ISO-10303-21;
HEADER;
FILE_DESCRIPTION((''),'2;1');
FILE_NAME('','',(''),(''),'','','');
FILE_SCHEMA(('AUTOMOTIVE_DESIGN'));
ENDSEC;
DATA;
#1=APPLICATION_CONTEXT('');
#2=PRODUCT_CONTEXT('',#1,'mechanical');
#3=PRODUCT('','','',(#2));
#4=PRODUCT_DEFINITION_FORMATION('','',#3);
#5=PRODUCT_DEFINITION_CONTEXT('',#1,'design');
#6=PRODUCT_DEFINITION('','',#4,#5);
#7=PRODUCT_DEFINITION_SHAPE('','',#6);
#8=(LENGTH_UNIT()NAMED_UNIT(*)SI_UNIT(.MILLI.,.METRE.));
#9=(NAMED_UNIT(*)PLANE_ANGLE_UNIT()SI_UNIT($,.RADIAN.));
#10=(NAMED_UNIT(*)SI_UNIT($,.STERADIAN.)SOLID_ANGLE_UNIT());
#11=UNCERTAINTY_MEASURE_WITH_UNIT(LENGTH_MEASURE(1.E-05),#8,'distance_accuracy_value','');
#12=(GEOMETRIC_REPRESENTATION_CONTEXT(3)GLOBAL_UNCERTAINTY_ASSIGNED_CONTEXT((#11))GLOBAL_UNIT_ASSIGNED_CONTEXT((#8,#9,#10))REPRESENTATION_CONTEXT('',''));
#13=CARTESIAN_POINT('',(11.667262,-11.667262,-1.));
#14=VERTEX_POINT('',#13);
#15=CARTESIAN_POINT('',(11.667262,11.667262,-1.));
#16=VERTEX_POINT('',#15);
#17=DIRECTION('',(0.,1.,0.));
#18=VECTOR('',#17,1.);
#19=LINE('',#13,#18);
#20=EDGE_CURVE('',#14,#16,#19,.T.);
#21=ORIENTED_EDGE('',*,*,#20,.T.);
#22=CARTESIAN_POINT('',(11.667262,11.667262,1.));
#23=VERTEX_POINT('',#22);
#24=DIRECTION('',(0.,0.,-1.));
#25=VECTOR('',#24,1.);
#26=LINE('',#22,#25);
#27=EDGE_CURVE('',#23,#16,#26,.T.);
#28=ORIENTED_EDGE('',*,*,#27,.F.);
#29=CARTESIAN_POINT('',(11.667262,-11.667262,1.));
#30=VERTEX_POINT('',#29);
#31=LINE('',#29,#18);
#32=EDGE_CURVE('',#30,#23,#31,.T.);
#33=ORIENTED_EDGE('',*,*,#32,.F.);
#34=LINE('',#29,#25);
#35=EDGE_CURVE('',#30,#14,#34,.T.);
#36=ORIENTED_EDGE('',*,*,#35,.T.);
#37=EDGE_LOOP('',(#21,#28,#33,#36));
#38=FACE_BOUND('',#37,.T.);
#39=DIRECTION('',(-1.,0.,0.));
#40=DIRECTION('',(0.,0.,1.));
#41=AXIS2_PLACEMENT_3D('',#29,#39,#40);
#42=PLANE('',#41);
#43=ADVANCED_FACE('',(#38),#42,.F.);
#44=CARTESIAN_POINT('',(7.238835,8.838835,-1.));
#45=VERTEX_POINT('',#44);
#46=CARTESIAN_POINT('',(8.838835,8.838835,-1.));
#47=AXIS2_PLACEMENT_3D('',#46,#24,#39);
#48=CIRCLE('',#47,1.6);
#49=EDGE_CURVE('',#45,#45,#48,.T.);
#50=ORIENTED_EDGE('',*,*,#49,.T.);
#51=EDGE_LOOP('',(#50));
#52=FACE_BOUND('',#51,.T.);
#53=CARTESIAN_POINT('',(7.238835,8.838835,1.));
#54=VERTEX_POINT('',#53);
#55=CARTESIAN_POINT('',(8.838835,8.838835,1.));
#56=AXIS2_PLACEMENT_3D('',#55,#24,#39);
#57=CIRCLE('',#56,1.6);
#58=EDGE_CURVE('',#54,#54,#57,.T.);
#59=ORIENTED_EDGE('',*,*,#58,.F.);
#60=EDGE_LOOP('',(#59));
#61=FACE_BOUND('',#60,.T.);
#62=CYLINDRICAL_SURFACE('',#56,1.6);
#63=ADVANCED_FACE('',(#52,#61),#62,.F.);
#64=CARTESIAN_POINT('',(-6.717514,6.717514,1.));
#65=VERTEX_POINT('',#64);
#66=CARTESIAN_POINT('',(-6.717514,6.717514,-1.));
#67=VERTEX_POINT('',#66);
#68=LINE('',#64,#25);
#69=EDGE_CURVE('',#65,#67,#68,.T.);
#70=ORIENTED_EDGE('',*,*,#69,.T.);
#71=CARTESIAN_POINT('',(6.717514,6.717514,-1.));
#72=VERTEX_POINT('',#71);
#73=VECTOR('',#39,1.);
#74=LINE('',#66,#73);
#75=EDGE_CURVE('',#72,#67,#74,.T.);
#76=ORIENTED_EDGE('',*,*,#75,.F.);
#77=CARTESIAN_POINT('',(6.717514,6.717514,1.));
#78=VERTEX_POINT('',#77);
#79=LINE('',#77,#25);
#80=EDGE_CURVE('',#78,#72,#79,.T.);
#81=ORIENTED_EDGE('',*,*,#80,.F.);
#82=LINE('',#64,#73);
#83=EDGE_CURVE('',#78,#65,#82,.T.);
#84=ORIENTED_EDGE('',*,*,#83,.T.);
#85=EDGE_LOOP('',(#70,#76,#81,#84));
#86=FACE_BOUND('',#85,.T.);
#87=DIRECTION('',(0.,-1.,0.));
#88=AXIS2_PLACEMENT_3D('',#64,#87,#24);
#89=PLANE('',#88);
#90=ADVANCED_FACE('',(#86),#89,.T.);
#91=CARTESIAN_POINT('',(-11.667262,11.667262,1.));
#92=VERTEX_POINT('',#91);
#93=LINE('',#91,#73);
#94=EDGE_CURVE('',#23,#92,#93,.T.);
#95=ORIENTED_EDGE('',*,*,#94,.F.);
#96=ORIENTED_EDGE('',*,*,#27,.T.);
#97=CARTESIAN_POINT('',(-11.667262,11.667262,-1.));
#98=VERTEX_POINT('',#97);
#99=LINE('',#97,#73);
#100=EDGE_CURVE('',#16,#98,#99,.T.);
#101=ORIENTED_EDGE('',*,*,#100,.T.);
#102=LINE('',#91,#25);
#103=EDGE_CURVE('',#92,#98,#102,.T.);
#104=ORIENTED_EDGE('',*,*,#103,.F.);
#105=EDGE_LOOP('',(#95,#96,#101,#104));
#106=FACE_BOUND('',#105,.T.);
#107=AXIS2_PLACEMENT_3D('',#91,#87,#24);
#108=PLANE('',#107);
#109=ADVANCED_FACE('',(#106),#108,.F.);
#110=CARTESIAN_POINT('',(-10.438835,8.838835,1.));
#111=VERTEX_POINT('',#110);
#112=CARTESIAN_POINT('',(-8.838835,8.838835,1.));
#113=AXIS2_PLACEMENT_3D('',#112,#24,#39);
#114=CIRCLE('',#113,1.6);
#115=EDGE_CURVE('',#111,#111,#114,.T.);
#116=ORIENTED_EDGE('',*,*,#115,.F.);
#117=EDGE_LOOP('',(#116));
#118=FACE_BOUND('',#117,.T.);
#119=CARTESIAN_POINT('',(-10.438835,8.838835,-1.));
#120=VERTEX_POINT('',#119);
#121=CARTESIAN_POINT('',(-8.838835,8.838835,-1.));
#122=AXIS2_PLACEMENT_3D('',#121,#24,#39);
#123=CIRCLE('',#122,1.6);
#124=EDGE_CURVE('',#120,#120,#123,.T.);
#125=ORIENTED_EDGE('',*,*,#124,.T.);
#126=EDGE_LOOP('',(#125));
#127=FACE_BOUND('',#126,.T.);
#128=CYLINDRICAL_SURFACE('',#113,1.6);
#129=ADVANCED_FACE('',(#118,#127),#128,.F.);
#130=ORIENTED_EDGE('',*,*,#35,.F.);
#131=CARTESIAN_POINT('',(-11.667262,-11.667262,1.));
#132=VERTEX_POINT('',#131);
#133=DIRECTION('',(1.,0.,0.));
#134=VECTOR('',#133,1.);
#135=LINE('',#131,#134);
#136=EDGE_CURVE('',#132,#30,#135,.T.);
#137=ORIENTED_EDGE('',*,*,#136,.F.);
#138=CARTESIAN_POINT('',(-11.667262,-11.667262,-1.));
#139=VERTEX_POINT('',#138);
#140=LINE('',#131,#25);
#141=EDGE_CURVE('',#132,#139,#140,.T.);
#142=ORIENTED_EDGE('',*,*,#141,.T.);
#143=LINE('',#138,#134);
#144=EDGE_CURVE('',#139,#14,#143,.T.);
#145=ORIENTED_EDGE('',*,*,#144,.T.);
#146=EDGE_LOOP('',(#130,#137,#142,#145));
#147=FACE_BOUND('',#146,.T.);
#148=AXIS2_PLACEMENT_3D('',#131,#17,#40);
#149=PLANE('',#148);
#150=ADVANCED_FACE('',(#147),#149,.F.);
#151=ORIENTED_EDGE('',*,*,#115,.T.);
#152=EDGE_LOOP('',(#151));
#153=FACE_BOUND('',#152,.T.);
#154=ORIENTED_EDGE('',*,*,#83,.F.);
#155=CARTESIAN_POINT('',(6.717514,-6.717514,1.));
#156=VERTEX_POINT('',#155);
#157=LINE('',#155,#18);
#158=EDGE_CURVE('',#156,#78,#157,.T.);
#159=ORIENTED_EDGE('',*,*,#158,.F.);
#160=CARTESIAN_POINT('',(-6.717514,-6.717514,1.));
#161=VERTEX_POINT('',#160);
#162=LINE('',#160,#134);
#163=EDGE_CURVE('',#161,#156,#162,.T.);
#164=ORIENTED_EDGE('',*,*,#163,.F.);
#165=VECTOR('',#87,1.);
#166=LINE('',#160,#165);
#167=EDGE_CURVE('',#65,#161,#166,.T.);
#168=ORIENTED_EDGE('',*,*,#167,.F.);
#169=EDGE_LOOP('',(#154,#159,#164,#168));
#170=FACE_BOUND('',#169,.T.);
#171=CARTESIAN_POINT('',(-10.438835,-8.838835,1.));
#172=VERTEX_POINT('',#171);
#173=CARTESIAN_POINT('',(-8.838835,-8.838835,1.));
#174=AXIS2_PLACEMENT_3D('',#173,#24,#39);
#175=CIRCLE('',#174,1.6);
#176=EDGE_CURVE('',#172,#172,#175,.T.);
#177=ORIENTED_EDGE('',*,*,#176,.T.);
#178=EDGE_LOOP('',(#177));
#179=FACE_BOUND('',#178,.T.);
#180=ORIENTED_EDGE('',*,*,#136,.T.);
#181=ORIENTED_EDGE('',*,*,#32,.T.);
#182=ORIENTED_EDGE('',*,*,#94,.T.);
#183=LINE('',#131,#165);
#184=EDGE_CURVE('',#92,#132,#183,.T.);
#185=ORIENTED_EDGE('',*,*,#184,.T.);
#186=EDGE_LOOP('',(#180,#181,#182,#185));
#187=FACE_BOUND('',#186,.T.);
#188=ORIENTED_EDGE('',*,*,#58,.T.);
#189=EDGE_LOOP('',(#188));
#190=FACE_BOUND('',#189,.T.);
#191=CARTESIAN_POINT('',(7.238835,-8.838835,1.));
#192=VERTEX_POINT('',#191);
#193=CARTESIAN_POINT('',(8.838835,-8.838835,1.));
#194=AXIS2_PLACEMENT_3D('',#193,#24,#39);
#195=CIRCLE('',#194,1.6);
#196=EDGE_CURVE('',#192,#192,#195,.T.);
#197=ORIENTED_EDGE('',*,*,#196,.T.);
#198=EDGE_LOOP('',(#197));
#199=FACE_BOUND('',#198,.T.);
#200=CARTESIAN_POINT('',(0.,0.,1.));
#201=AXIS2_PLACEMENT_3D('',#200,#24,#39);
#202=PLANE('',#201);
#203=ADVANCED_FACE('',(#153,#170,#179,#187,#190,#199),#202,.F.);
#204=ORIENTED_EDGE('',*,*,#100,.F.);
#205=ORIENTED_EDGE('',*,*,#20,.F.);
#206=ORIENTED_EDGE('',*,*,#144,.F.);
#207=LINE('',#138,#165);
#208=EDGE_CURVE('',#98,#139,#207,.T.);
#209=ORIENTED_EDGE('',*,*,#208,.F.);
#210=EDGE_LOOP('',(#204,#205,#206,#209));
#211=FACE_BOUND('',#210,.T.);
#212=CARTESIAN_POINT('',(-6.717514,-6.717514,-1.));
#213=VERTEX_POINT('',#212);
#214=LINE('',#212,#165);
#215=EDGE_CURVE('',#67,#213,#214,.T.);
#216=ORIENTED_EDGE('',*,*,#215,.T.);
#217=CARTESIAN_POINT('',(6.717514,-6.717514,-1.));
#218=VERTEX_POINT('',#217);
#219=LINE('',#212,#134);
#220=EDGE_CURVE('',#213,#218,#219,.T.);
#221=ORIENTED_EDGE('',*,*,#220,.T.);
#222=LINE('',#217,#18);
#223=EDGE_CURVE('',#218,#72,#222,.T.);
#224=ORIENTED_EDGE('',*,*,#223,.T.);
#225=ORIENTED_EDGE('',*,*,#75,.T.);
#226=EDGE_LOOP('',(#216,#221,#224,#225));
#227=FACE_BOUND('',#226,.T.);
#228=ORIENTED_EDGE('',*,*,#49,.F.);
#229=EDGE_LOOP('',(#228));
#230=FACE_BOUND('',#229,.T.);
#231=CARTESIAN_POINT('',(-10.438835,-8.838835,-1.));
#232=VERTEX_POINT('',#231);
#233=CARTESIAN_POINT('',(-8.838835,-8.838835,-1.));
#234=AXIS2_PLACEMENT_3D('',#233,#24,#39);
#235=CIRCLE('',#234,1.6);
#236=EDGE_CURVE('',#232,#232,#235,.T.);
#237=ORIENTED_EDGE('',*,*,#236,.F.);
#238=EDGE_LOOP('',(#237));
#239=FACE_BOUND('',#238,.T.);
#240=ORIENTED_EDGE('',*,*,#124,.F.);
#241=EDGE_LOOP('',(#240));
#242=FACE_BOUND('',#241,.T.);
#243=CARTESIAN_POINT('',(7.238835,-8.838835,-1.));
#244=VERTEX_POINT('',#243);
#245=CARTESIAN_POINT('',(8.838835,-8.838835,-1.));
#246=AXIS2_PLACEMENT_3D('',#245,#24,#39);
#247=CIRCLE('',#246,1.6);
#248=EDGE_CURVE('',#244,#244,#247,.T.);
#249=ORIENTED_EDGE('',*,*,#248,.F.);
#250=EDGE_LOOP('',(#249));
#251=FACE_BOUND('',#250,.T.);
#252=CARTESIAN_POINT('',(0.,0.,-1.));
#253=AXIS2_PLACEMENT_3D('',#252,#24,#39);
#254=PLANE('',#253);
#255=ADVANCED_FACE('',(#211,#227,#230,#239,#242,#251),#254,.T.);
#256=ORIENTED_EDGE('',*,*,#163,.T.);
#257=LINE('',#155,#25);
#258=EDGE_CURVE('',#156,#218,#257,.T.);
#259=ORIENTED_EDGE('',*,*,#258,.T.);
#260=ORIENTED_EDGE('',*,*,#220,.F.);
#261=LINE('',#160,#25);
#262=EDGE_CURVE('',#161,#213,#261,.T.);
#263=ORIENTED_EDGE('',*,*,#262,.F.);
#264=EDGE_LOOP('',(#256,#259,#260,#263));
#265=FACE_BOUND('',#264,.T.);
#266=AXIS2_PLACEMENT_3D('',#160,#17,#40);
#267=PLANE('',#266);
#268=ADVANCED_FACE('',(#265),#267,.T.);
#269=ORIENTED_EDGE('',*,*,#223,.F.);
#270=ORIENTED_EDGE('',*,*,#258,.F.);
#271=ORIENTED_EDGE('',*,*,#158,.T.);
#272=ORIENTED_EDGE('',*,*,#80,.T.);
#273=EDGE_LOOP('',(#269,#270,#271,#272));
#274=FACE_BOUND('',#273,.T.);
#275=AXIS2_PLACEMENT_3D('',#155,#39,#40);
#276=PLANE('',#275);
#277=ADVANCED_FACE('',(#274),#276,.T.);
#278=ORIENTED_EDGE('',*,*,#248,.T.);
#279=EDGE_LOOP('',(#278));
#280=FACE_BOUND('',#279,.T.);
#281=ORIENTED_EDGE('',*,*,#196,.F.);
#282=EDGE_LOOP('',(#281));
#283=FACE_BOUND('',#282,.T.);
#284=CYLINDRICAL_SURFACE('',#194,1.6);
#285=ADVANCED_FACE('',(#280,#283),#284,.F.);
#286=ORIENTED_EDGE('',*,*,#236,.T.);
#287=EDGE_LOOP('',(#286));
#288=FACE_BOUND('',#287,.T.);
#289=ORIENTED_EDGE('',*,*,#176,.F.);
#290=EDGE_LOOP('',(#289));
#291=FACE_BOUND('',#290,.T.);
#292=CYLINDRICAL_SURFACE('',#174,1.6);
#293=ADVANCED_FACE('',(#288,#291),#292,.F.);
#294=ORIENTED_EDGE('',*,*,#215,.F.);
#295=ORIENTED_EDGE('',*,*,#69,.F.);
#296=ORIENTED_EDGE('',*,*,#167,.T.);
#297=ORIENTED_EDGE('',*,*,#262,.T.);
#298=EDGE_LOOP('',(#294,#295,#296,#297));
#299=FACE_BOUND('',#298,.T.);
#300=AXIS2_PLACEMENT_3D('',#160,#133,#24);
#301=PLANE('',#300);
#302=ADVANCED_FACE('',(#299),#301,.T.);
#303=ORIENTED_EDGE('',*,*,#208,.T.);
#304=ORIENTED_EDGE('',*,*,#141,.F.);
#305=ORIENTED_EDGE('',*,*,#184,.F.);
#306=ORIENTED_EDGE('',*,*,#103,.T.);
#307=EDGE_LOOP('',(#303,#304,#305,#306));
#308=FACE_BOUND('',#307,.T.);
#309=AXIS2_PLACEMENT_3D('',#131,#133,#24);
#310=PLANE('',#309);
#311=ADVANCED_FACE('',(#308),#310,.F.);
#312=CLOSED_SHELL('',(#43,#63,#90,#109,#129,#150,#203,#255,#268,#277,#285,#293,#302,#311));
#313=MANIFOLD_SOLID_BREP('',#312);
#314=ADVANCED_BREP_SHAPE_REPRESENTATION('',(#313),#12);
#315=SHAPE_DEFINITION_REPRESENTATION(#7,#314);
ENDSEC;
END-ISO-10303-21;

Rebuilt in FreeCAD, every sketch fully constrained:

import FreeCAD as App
import Part
import Sketcher
Q = App.Units.Quantity

doc = App.newDocument("Part")
body = doc.addObject("PartDesign::Body", "Body")

# Sketch on XY plane
sketch1 = body.newObject("Sketcher::SketchObject", "Sketch")
sketch1.AttachmentSupport = (doc.getObject("XY_Plane"), [""])
sketch1.MapMode = "FlatFace"
sketch1.addGeometry([
    Part.LineSegment(App.Vector(-11.667262, 11.667262, 0), App.Vector(-11.667262, -11.667262, 0)),  # 0
    Part.LineSegment(App.Vector(-11.667262, -11.667262, 0), App.Vector(11.667262, -11.667262, 0)),  # 1
    Part.LineSegment(App.Vector(11.667262, -11.667262, 0), App.Vector(11.667262, 11.667262, 0)),  # 2
    Part.LineSegment(App.Vector(11.667262, 11.667262, 0), App.Vector(-11.667262, 11.667262, 0)),  # 3
    Part.LineSegment(App.Vector(6.717514, -6.717514, 0), App.Vector(-6.717514, -6.717514, 0)),  # 4
    Part.LineSegment(App.Vector(-6.717514, -6.717514, 0), App.Vector(-6.717514, 6.717514, 0)),  # 5
    Part.LineSegment(App.Vector(-6.717514, 6.717514, 0), App.Vector(6.717514, 6.717514, 0)),  # 6
    Part.LineSegment(App.Vector(6.717514, 6.717514, 0), App.Vector(6.717514, -6.717514, 0)),  # 7
], False)
sketch1.addConstraint([
    Sketcher.Constraint("Coincident", 0, 2, 1, 1),
    Sketcher.Constraint("Coincident", 1, 2, 2, 1),
    Sketcher.Constraint("Coincident", 2, 2, 3, 1),
    Sketcher.Constraint("Coincident", 3, 2, 0, 1),
    Sketcher.Constraint("Coincident", 4, 2, 5, 1),
    Sketcher.Constraint("Coincident", 5, 2, 6, 1),
    Sketcher.Constraint("Coincident", 6, 2, 7, 1),
    Sketcher.Constraint("Coincident", 7, 2, 4, 1),
    Sketcher.Constraint("Vertical", 0),
    Sketcher.Constraint("Horizontal", 1),
    Sketcher.Constraint("Vertical", 2),
    Sketcher.Constraint("Horizontal", 3),
    Sketcher.Constraint("Horizontal", 4),
    Sketcher.Constraint("Vertical", 5),
    Sketcher.Constraint("Horizontal", 6),
    Sketcher.Constraint("Vertical", 7),
    Sketcher.Constraint("Symmetric", 0, 2, 2, 2, -1, 1),
    Sketcher.Constraint("Symmetric", 4, 2, 6, 2, -1, 1),
    Sketcher.Constraint("Equal", 3, 0),
    Sketcher.Constraint("Equal", 6, 5),
    Sketcher.Constraint("DistanceX", 4, 2, 4, 1, Q("13.435029 mm")),
    Sketcher.Constraint("DistanceX", 1, 1, 1, 2, Q("23.334524 mm")),
])
pad1 = body.newObject("PartDesign::Pad", "Pad")
pad1.Profile = sketch1
pad1.Length = 2
pad1.Midplane = True

# Sketch on XY plane
sketch2 = body.newObject("Sketcher::SketchObject", "Sketch001")
sketch2.AttachmentSupport = (doc.getObject("XY_Plane"), [""])
sketch2.MapMode = "FlatFace"
sketch2.AttachmentOffset = App.Placement(App.Vector(0, 0, -1), App.Rotation())
sketch2.addGeometry([
    Part.Circle(App.Vector(-8.838835, -8.838835, 0), App.Vector(0, 0, 1), 1.6),
    Part.Circle(App.Vector(-8.838835, 8.838835, 0), App.Vector(0, 0, 1), 1.6),
    Part.Circle(App.Vector(8.838835, -8.838835, 0), App.Vector(0, 0, 1), 1.6),
    Part.Circle(App.Vector(8.838835, 8.838835, 0), App.Vector(0, 0, 1), 1.6),
], False)
sketch2.addConstraint([
    Sketcher.Constraint("Equal", 0, 1),
    Sketcher.Constraint("Equal", 1, 2),
    Sketcher.Constraint("Equal", 2, 3),
    Sketcher.Constraint("Symmetric", 1, 3, 2, 3, -1, 1),
    Sketcher.Constraint("Symmetric", 0, 3, 3, 3, -1, 1),
    Sketcher.Constraint("Symmetric", 0, 3, 2, 3, -2),
    Sketcher.Constraint("Diameter", 0, Q("3.2 mm")),
    Sketcher.Constraint("DistanceY", 0, 3, 1, 3, Q("17.67767 mm")),
    Sketcher.Constraint("DistanceX", 0, 3, 2, 3, Q("17.67767 mm")),
])
pocket1 = body.newObject("PartDesign::Pocket", "Pocket")
pocket1.Profile = sketch2
pocket1.Type = "ThroughAll"
pocket1.Reversed = True

doc.recompute()
